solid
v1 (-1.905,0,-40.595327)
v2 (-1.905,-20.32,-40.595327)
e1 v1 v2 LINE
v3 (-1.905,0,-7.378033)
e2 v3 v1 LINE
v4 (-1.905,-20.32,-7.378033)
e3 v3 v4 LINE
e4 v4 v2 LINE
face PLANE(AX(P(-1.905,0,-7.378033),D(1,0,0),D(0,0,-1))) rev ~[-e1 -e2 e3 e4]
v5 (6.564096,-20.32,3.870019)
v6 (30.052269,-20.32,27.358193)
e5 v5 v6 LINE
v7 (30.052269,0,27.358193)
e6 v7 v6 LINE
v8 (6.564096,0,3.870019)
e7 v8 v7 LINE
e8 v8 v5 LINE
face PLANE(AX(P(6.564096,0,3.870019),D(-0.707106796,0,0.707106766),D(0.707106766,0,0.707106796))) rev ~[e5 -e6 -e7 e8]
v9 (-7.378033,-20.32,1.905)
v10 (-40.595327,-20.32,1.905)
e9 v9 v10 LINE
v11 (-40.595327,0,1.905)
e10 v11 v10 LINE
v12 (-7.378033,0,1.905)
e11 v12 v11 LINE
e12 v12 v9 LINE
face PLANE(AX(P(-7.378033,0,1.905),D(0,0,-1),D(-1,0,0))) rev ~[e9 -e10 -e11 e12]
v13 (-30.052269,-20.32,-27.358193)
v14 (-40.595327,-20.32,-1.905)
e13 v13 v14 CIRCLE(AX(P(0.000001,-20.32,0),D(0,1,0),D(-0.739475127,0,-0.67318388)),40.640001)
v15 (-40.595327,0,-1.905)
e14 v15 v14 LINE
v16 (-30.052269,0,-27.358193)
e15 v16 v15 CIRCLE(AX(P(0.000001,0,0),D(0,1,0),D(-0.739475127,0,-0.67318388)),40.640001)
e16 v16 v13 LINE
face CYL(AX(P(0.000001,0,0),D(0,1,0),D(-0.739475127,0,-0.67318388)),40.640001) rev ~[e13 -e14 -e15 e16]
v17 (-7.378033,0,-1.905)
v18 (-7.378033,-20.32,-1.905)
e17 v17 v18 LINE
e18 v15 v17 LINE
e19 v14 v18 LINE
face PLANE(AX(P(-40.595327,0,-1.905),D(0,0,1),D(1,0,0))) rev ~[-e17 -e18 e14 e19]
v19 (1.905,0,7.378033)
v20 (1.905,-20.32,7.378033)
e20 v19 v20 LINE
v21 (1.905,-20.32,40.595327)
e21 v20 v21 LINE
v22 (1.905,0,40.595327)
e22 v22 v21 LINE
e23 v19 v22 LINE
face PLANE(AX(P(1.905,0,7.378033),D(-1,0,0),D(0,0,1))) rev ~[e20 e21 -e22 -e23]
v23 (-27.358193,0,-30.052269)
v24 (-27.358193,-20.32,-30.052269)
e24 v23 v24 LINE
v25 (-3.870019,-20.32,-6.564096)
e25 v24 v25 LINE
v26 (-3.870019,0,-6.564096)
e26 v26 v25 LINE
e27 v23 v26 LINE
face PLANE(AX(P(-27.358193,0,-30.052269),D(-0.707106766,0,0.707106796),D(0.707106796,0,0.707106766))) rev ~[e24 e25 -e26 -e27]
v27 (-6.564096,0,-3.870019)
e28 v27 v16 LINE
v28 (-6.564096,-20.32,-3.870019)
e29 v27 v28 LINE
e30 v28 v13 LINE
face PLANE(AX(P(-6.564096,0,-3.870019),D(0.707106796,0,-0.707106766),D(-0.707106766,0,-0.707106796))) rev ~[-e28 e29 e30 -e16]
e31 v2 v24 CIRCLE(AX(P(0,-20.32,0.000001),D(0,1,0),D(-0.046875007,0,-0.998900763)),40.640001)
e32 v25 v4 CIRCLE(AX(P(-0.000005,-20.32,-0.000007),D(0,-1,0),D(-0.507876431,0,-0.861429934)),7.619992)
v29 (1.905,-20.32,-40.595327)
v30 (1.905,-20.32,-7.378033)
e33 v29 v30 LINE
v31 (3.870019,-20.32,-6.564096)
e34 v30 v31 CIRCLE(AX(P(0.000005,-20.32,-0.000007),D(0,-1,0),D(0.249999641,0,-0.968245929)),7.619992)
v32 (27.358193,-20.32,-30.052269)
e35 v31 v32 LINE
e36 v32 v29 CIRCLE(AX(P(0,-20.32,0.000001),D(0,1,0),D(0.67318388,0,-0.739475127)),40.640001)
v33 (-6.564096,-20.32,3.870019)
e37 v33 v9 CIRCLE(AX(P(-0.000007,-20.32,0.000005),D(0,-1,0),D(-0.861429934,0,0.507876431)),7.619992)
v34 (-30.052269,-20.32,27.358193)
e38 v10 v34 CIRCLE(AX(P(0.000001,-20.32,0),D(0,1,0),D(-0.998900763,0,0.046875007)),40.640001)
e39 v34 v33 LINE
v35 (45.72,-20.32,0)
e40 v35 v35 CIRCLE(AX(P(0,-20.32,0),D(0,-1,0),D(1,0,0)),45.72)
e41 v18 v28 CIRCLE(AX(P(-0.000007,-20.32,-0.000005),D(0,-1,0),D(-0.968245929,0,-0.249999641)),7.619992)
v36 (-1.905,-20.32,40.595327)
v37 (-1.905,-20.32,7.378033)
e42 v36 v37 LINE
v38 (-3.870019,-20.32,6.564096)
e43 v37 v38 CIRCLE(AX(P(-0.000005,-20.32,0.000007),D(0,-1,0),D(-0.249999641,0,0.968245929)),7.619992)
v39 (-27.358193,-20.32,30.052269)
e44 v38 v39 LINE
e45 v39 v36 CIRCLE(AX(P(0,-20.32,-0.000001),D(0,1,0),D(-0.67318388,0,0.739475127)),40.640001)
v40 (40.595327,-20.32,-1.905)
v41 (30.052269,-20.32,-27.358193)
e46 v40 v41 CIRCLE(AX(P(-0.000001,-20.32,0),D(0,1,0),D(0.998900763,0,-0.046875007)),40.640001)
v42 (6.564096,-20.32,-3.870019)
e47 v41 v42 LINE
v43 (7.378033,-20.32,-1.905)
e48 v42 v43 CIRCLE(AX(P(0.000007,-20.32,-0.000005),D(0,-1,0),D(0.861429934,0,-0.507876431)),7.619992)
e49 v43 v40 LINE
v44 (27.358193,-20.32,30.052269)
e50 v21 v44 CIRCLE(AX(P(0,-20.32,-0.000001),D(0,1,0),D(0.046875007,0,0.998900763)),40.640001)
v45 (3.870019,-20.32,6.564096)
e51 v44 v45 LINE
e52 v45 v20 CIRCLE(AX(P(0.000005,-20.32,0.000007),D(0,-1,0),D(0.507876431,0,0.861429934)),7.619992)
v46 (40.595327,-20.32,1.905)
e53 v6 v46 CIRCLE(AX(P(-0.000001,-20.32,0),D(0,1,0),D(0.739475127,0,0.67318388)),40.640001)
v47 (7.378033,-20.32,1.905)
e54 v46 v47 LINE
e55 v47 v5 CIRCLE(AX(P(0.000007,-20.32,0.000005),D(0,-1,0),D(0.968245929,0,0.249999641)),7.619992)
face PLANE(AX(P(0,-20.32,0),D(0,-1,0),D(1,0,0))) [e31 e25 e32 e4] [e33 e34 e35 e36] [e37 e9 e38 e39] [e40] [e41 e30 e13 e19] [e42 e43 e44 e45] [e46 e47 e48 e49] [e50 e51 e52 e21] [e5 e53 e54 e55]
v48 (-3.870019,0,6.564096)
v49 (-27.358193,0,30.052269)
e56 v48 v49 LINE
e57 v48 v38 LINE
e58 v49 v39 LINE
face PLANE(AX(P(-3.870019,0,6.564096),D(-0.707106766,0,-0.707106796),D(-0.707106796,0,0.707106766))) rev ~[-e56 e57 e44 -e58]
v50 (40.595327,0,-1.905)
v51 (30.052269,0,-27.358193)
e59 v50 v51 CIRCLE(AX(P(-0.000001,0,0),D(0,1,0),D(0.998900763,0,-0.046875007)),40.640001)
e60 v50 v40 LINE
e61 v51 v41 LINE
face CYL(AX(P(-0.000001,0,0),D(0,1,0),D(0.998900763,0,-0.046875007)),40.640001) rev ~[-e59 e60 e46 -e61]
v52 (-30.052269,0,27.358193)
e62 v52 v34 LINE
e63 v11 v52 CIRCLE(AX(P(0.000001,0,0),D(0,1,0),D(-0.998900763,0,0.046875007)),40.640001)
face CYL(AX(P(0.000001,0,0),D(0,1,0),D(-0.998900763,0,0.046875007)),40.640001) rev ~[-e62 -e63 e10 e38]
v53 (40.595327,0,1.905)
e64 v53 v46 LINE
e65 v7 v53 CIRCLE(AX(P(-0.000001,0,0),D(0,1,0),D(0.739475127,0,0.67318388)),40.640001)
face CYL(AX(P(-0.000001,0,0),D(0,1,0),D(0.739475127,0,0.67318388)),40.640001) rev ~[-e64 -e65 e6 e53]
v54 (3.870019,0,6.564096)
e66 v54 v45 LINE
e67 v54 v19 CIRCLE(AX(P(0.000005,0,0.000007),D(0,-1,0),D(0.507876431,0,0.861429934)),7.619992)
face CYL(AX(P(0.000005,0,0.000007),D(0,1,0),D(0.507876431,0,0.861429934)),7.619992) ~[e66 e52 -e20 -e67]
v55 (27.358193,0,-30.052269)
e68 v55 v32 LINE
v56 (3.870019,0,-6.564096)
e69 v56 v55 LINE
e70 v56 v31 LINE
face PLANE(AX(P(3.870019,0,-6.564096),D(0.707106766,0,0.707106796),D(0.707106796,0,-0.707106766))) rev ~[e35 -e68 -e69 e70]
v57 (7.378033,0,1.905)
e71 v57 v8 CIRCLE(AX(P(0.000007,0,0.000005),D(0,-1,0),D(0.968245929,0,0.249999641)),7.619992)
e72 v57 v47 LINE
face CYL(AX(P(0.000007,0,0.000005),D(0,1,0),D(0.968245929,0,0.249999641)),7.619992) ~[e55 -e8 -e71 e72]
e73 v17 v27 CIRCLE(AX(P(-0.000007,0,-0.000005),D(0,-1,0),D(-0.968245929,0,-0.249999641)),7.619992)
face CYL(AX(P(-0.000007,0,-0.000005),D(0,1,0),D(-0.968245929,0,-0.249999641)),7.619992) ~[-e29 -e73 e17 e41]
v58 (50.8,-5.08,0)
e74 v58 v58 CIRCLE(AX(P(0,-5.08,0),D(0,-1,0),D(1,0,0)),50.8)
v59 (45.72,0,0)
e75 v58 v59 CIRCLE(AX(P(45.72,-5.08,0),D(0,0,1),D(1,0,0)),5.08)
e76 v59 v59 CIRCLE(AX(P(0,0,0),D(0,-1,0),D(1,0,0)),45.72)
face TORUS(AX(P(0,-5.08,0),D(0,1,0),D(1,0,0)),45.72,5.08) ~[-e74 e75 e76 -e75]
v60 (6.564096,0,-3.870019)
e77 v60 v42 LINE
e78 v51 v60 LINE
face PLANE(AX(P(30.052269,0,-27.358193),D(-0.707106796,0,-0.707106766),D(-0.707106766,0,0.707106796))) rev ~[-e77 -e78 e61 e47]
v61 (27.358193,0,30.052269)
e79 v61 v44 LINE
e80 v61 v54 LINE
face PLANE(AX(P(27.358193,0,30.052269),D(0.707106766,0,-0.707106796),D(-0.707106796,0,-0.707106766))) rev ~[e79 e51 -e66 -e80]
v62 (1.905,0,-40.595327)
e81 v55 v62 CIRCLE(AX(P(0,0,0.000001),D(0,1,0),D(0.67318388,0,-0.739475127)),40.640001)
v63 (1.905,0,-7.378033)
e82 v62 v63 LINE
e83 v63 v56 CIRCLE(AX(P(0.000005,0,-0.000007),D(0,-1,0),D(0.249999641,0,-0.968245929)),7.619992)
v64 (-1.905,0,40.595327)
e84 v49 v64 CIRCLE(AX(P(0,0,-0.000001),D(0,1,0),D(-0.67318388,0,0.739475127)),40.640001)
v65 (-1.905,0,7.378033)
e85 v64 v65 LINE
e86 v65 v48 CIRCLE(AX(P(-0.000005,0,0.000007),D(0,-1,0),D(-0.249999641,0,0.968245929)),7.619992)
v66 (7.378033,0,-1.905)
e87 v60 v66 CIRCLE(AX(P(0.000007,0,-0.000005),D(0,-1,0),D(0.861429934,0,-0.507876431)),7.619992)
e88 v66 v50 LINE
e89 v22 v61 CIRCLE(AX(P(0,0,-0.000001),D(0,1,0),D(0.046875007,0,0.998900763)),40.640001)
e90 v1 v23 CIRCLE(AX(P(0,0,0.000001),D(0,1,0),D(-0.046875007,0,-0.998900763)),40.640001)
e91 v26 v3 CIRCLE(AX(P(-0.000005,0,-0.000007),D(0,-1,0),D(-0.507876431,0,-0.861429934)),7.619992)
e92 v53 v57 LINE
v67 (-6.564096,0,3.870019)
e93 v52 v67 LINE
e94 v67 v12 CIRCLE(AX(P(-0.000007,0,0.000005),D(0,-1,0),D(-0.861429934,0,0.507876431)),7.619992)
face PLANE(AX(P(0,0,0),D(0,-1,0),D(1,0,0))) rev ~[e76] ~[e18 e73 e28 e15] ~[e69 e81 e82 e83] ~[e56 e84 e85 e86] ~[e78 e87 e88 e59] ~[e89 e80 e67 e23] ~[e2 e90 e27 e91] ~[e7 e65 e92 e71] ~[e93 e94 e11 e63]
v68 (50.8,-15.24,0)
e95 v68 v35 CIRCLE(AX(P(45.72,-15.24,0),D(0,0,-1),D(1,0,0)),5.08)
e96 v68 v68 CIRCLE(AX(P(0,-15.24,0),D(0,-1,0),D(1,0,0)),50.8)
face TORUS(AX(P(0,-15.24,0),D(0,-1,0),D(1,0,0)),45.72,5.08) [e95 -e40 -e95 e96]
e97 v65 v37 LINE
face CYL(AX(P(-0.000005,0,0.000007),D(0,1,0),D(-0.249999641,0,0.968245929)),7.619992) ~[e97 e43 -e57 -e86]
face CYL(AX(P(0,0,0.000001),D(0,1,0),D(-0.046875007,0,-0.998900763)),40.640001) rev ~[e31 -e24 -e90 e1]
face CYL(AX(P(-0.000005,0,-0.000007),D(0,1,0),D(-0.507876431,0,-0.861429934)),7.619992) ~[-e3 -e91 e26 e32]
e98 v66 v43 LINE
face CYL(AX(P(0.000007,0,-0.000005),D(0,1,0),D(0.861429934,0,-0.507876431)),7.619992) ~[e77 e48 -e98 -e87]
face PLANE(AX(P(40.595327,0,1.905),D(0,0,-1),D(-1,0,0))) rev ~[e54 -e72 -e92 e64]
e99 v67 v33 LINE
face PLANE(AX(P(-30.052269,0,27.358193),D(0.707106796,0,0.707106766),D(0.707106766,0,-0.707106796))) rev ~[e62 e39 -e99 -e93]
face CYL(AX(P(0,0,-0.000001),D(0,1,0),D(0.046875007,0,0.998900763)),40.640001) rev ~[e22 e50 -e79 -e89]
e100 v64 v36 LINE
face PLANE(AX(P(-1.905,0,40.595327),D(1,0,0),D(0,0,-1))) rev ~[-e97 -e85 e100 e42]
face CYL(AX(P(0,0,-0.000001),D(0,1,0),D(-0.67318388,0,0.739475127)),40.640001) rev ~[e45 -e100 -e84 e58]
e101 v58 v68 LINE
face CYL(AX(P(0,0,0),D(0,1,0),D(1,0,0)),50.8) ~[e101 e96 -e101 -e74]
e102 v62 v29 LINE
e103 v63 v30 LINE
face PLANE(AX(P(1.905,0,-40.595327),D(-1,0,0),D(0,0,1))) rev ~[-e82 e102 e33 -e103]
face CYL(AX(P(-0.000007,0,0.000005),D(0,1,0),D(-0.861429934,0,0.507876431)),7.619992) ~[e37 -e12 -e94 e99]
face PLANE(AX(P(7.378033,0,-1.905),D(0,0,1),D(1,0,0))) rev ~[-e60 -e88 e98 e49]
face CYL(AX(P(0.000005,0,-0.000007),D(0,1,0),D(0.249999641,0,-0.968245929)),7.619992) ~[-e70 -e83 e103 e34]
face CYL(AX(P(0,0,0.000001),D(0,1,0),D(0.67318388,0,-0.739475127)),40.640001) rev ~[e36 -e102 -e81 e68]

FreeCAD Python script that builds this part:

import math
import FreeCAD as App
import Part
import Sketcher
Q = App.Units.Quantity


def edges_at(feature, points):
    """Names of the edges that pass closest to the given points."""
    edges = feature.Shape.Edges
    near = lambda p: min(range(len(edges)), key=lambda i: edges[i].distToShape(Part.Vertex(*p))[0])
    return sorted({f"Edge{near(p) + 1}" for p in points})

doc = App.newDocument("Part")
params = doc.addObject("Spreadsheet::Sheet", "Params")
for row, (alias, value) in enumerate([
    ("sketch1_diameter", "4 in"),
    ("sketch1_radius", "1.6 in"),
    ("pad1_length", "0.8 in"),
    ("fillet_radius", "0.2 in"),
], start=1):
    params.set(f"A{row}", alias)
    params.set(f"B{row}", "=" + value)
    params.setAlias(f"B{row}", alias)

body = doc.addObject("PartDesign::Body", "Body")

# Sketch on XZ plane
sketch1 = body.newObject("Sketcher::SketchObject", "Sketch")
sketch1.AttachmentSupport = (doc.getObject("XZ_Plane"), [""])
sketch1.MapMode = "FlatFace"
sketch1.addGeometry([
    Part.Circle(App.Vector(0, 0, 0), App.Vector(0, 0, 1), 50.8),  # 0
    Part.LineSegment(App.Vector(-1.9, -7.4, 0), App.Vector(-1.9, -40.6, 0)),  # 1
    Part.ArcOfCircle(Part.Circle(App.Vector(0, 0, 0), App.Vector(0, 0, 1), 40.6), math.radians(-132), math.radians(-93)),  # 2
    Part.LineSegment(App.Vector(-27.4, -30.1, 0), App.Vector(-3.9, -6.6, 0)),  # 3
    Part.ArcOfCircle(Part.Circle(App.Vector(0, 0, 0), App.Vector(0, 0, 1), 7.6), math.radians(-120.52), math.radians(-104.48)),  # 4
    Part.LineSegment(App.Vector(-6.6, -3.9, 0), App.Vector(-30.1, -27.4, 0)),  # 5
    Part.ArcOfCircle(Part.Circle(App.Vector(0, 0, 0), App.Vector(0, 0, 1), 40.6), math.radians(-177), math.radians(-138)),  # 6
    Part.LineSegment(App.Vector(-40.6, -1.9, 0), App.Vector(-7.4, -1.9, 0)),  # 7
    Part.ArcOfCircle(Part.Circle(App.Vector(0, 0, 0), App.Vector(0, 0, 1), 7.6), math.radians(-165.52), math.radians(-149.48)),  # 8
    Part.LineSegment(App.Vector(3.9, -6.6, 0), App.Vector(27.4, -30.1, 0)),  # 9
    Part.ArcOfCircle(Part.Circle(App.Vector(0, 0, 0), App.Vector(0, 0, 1), 40.6), math.radians(-87), math.radians(-48)),  # 10
    Part.LineSegment(App.Vector(1.9, -40.6, 0), App.Vector(1.9, -7.4, 0)),  # 11
    Part.ArcOfCircle(Part.Circle(App.Vector(0, 0, 0), App.Vector(0, 0, 1), 7.6), math.radians(-75.52), math.radians(-59.48)),  # 12
    Part.LineSegment(App.Vector(7.4, -1.9, 0), App.Vector(40.6, -1.9, 0)),  # 13
    Part.ArcOfCircle(Part.Circle(App.Vector(0, 0, 0), App.Vector(0, 0, 1), 40.6), math.radians(-42), math.radians(-3)),  # 14
    Part.LineSegment(App.Vector(30.1, -27.4, 0), App.Vector(6.6, -3.9, 0)),  # 15
    Part.ArcOfCircle(Part.Circle(App.Vector(0, 0, 0), App.Vector(0, 0, 1), 7.6), math.radians(-30.52), math.radians(-14.48)),  # 16
    Part.LineSegment(App.Vector(-7.4, 1.9, 0), App.Vector(-40.6, 1.9, 0)),  # 17
    Part.ArcOfCircle(Part.Circle(App.Vector(0, 0, 0), App.Vector(0, 0, 1), 40.6), math.radians(138), math.radians(177)),  # 18
    Part.LineSegment(App.Vector(-30.1, 27.4, 0), App.Vector(-6.6, 3.9, 0)),  # 19
    Part.ArcOfCircle(Part.Circle(App.Vector(0, 0, 0), App.Vector(0, 0, 1), 7.6), math.radians(149.48), math.radians(165.52)),  # 20
    Part.ArcOfCircle(Part.Circle(App.Vector(0, 0, 0), App.Vector(0, 0, 1), 40.6), math.radians(93), math.radians(132)),  # 21
    Part.LineSegment(App.Vector(-1.9, 40.6, 0), App.Vector(-1.9, 7.4, 0)),  # 22
    Part.ArcOfCircle(Part.Circle(App.Vector(0, 0, 0), App.Vector(0, 0, 1), 7.6), math.radians(104.48), math.radians(120.52)),  # 23
    Part.LineSegment(App.Vector(-3.9, 6.6, 0), App.Vector(-27.4, 30.1, 0)),  # 24
    Part.ArcOfCircle(Part.Circle(App.Vector(0, 0, 0), App.Vector(0, 0, 1), 7.6), math.radians(14.48), math.radians(30.52)),  # 25
    Part.LineSegment(App.Vector(6.6, 3.9, 0), App.Vector(30.1, 27.4, 0)),  # 26
    Part.ArcOfCircle(Part.Circle(App.Vector(0, 0, 0), App.Vector(0, 0, 1), 40.6), math.radians(3), math.radians(42)),  # 27
    Part.LineSegment(App.Vector(40.6, 1.9, 0), App.Vector(7.4, 1.9, 0)),  # 28
    Part.ArcOfCircle(Part.Circle(App.Vector(0, 0, 0), App.Vector(0, 0, 1), 7.6), math.radians(59.48), math.radians(75.52)),  # 29
    Part.LineSegment(App.Vector(1.9, 7.4, 0), App.Vector(1.9, 40.6, 0)),  # 30
    Part.ArcOfCircle(Part.Circle(App.Vector(0, 0, 0), App.Vector(0, 0, 1), 40.6), math.radians(48), math.radians(87)),  # 31
    Part.LineSegment(App.Vector(27.4, 30.1, 0), App.Vector(3.9, 6.6, 0)),  # 32
], False)
sketch1.addConstraint([
    Sketcher.Constraint("Coincident", 1, 2, 2, 2),
    Sketcher.Constraint("Coincident", 2, 1, 3, 1),
    Sketcher.Constraint("Coincident", 3, 2, 4, 1),
    Sketcher.Constraint("Coincident", 4, 2, 1, 1),
    Sketcher.Constraint("Coincident", 5, 2, 6, 2),
    Sketcher.Constraint("Coincident", 6, 1, 7, 1),
    Sketcher.Constraint("Coincident", 7, 2, 8, 1),
    Sketcher.Constraint("Coincident", 8, 2, 5, 1),
    Sketcher.Constraint("Coincident", 9, 2, 10, 2),
    Sketcher.Constraint("Coincident", 10, 1, 11, 1),
    Sketcher.Constraint("Coincident", 11, 2, 12, 1),
    Sketcher.Constraint("Coincident", 12, 2, 9, 1),
    Sketcher.Constraint("Coincident", 13, 2, 14, 2),
    Sketcher.Constraint("Coincident", 14, 1, 15, 1),
    Sketcher.Constraint("Coincident", 15, 2, 16, 1),
    Sketcher.Constraint("Coincident", 16, 2, 13, 1),
    Sketcher.Constraint("Coincident", 17, 2, 18, 2),
    Sketcher.Constraint("Coincident", 18, 1, 19, 1),
    Sketcher.Constraint("Coincident", 19, 2, 20, 1),
    Sketcher.Constraint("Coincident", 20, 2, 17, 1),
    Sketcher.Constraint("Coincident", 21, 1, 22, 1),
    Sketcher.Constraint("Coincident", 22, 2, 23, 1),
    Sketcher.Constraint("Coincident", 23, 2, 24, 1),
    Sketcher.Constraint("Coincident", 24, 2, 21, 2),
    Sketcher.Constraint("Coincident", 25, 2, 26, 1),
    Sketcher.Constraint("Coincident", 26, 2, 27, 2),
    Sketcher.Constraint("Coincident", 27, 1, 28, 1),
    Sketcher.Constraint("Coincident", 28, 2, 25, 1),
    Sketcher.Constraint("Coincident", 29, 2, 30, 1),
    Sketcher.Constraint("Coincident", 30, 2, 31, 2),
    Sketcher.Constraint("Coincident", 31, 1, 32, 1),
    Sketcher.Constraint("Coincident", 32, 2, 29, 1),
    Sketcher.Constraint("Vertical", 1),
    Sketcher.Constraint("Horizontal", 7),
    Sketcher.Constraint("Vertical", 11),
    Sketcher.Constraint("Horizontal", 13),
    Sketcher.Constraint("Horizontal", 17),
    Sketcher.Constraint("Vertical", 22),
    Sketcher.Constraint("Horizontal", 28),
    Sketcher.Constraint("Vertical", 30),
    Sketcher.Constraint("Coincident", 0, 3, -1, 1),
    Sketcher.Constraint("Coincident", 2, 3, -1, 1),
    Sketcher.Constraint("Coincident", 4, 3, -1, 1),
    Sketcher.Constraint("Coincident", 6, 3, -1, 1),
    Sketcher.Constraint("Coincident", 8, 3, -1, 1),
    Sketcher.Constraint("Coincident", 10, 3, -1, 1),
    Sketcher.Constraint("Coincident", 12, 3, -1, 1),
    Sketcher.Constraint("Coincident", 14, 3, -1, 1),
    Sketcher.Constraint("Coincident", 16, 3, -1, 1),
    Sketcher.Constraint("Coincident", 18, 3, -1, 1),
    Sketcher.Constraint("Coincident", 20, 3, -1, 1),
    Sketcher.Constraint("Coincident", 21, 3, -1, 1),
    Sketcher.Constraint("Coincident", 23, 3, -1, 1),
    Sketcher.Constraint("Coincident", 25, 3, -1, 1),
    Sketcher.Constraint("Coincident", 27, 3, -1, 1),
    Sketcher.Constraint("Coincident", 29, 3, -1, 1),
    Sketcher.Constraint("Coincident", 31, 3, -1, 1),
    Sketcher.Constraint("Equal", 2, 6),
    Sketcher.Constraint("Equal", 4, 8),
    Sketcher.Constraint("Equal", 6, 10),
    Sketcher.Constraint("Equal", 8, 12),
    Sketcher.Constraint("Equal", 10, 14),
    Sketcher.Constraint("Equal", 12, 16),
    Sketcher.Constraint("Equal", 14, 18),
    Sketcher.Constraint("Equal", 16, 20),
    Sketcher.Constraint("Equal", 18, 21),
    Sketcher.Constraint("Equal", 20, 23),
    Sketcher.Constraint("Equal", 23, 25),
    Sketcher.Constraint("Equal", 21, 27),
    Sketcher.Constraint("Equal", 25, 29),
    Sketcher.Constraint("Equal", 27, 31),
    Sketcher.Constraint("Parallel", 3, 5),
    Sketcher.Constraint("Perpendicular", 5, 9),
    Sketcher.Constraint("Parallel", 9, 15),
    Sketcher.Constraint("Parallel", 15, 19),
    Sketcher.Constraint("Parallel", 19, 24),
    Sketcher.Constraint("Perpendicular", 24, 26),
    Sketcher.Constraint("Parallel", 26, 32),
    Sketcher.Constraint("Horizontal", 2, 1, 9, 2),
    Sketcher.Constraint("Horizontal", 1, 2, 10, 1),
    Sketcher.Constraint("Horizontal", 3, 2, 12, 2),
    Sketcher.Constraint("Horizontal", 7, 2, 13, 2),
    Sketcher.Constraint("Horizontal", 5, 2, 14, 1),
    Sketcher.Constraint("Horizontal", 19, 2, 25, 2),
    Sketcher.Constraint("Horizontal", 20, 2, 27, 1),
    Sketcher.Constraint("Horizontal", 22, 2, 29, 2),
    Sketcher.Constraint("Horizontal", 24, 2, 31, 1),
    Sketcher.Constraint("Vertical", 6, 1, 17, 2),
    Sketcher.Constraint("Vertical", 5, 2, 18, 1),
    Sketcher.Constraint("Vertical", 4, 2, 21, 1),
    Sketcher.Constraint("Vertical", 3, 2, 23, 2),
    Sketcher.Constraint("Equal", 28, 1),
    Sketcher.Constraint("Equal", 3, 5),
    Sketcher.Constraint("Diameter", 0, Q("4 in")),
    Sketcher.Constraint("Radius", 2, Q("1.6 in")),
    Sketcher.Constraint("DistanceX", 1, 2, 10, 1, Q("0.15 in")),
    Sketcher.Constraint("Radius", 4, 7.619992),
    Sketcher.Constraint("DistanceY", 2, 1, -1, 1, 30.052269),
])
sketch1.setExpression("Constraints[93]", "Params.sketch1_diameter")
sketch1.setExpression("Constraints[94]", "Params.sketch1_radius")
pad1 = body.newObject("PartDesign::Pad", "Pad")
pad1.Profile = sketch1
pad1.setExpression("Length", "Params.pad1_length")
doc.recompute()

fillet = body.newObject("PartDesign::Fillet", "Fillet")
fillet.Base = (pad1, edges_at(pad1, [(-50.8, -20.32, 0), (-50.8, 0, 0)]))
fillet.setExpression("Radius", "Params.fillet_radius")

doc.recompute()
